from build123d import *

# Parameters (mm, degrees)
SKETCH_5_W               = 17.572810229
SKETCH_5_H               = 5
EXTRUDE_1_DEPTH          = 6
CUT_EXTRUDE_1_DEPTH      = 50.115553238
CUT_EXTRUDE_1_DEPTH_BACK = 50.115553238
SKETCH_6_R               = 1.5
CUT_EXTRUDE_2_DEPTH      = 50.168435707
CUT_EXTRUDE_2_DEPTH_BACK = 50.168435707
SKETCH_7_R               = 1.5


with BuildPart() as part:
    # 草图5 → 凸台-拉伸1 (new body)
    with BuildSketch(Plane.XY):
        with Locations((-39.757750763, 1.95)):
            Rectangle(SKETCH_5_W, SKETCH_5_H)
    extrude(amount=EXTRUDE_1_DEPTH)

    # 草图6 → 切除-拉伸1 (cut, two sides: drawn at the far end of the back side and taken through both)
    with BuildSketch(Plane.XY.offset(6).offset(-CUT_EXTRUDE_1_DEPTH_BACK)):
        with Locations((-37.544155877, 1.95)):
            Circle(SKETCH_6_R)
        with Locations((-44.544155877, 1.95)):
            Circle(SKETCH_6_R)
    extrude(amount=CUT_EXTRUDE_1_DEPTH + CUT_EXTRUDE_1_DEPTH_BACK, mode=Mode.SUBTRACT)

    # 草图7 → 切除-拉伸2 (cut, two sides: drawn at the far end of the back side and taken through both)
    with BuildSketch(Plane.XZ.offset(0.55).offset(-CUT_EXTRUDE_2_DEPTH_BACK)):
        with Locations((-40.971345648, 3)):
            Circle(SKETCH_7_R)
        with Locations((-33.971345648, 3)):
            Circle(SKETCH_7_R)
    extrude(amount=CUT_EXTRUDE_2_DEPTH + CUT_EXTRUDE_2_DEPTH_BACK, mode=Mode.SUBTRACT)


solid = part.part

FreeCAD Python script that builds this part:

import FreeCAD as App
import Part
import Sketcher

V = App.Vector
Q = App.Units.Quantity


def add_polygon(sketch, points):
    """Adds a closed chain of lines whose ends are joined by coincident constraints."""
    first, n = sketch.GeometryCount, len(points)
    for a, b in zip(points, points[1:] + points[:1]):
        sketch.addGeometry(Part.LineSegment(App.Vector(*a, 0), App.Vector(*b, 0)), False)
    for i in range(n):
        sketch.addConstraint(Sketcher.Constraint("Coincident", first + i, 2, first + (i + 1) % n, 1))

doc = App.newDocument("Part")
body = doc.addObject("PartDesign::Body", "Body")

sketch1 = doc.addObject("Sketcher::SketchObject", "Sketch")
body.addObject(sketch1)
sketch1.AttachmentSupport = (doc.XY_Plane, [""])
sketch1.MapMode = "FlatFace"
add_polygon(sketch1, [(-49, 4), (-49, -1), (-31, -1), (-31, 4)])
sketch1.addConstraint([
    Sketcher.Constraint("Vertical", 0),
    Sketcher.Constraint("Horizontal", 1),
    Sketcher.Constraint("Vertical", 2),
    Sketcher.Constraint("Horizontal", 3),
    Sketcher.Constraint("DistanceY", 0, 2, 0, 1, Q("5 mm")),
    Sketcher.Constraint("DistanceY", 0, 2, -1, 1, Q("0.55 mm")),
    Sketcher.Constraint("DistanceX", 1, 1, 1, 2, Q("17.57281 mm")),
    Sketcher.Constraint("DistanceX", 0, 2, -1, 1, Q("48.544156 mm")),
])
pad1 = doc.addObject("PartDesign::Pad", "Pad")
body.addObject(pad1)
pad1.Profile = sketch1
pad1.Length = 6

sketch2 = doc.addObject("Sketcher::SketchObject", "Sketch001")
body.addObject(sketch2)
sketch2.AttachmentSupport = (doc.XY_Plane, [""])
sketch2.MapMode = "FlatFace"
sketch2.AttachmentOffset = App.Placement(V(0, 0, 6), App.Rotation())
sketch2.addGeometry([
    Part.Circle(V(-37.5, 1.9, 0), V(0, 0, 1), 1.5),
    Part.Circle(V(-44.5, 1.9, 0), V(0, 0, 1), 1.5),
], False)
sketch2.addConstraint([
    Sketcher.Constraint("Equal", 0, 1),
    Sketcher.Constraint("Horizontal", 0, 3, 1, 3),
    Sketcher.Constraint("Diameter", 0, Q("3 mm")),
    Sketcher.Constraint("DistanceX", 1, 3, 0, 3, Q("7 mm")),
    Sketcher.Constraint("DistanceY", -1, 1, 0, 3, Q("1.95 mm")),
    Sketcher.Constraint("DistanceX", 0, 3, -1, 1, Q("37.544156 mm")),
])
pocket1 = doc.addObject("PartDesign::Pocket", "Pocket")
body.addObject(pocket1)
pocket1.Profile = sketch2
pocket1.Type = "ThroughAll"
pocket1.Midplane = True

sketch3 = doc.addObject("Sketcher::SketchObject", "Sketch002")
body.addObject(sketch3)
sketch3.AttachmentSupport = (doc.XZ_Plane, [""])
sketch3.MapMode = "FlatFace"
sketch3.AttachmentOffset = App.Placement(V(0, 0, 0.55), App.Rotation())
sketch3.addGeometry([
    Part.Circle(V(-41, 3, 0), V(0, 0, 1), 1.5),
    Part.Circle(V(-34, 3, 0), V(0, 0, 1), 1.5),
], False)
sketch3.addConstraint([
    Sketcher.Constraint("Equal", 0, 1),
    Sketcher.Constraint("Horizontal", 0, 3, 1, 3),
    Sketcher.Constraint("Diameter", 0, Q("3 mm")),
    Sketcher.Constraint("DistanceY", -1, 1, 0, 3, Q("3 mm")),
    Sketcher.Constraint("DistanceX", 0, 3, 1, 3, Q("7 mm")),
    Sketcher.Constraint("DistanceX", 0, 3, -1, 1, Q("40.971346 mm")),
])
pocket2 = doc.addObject("PartDesign::Pocket", "Pocket001")
body.addObject(pocket2)
pocket2.Profile = sketch3
pocket2.Type = "ThroughAll"
pocket2.Midplane = True

doc.recompute()
